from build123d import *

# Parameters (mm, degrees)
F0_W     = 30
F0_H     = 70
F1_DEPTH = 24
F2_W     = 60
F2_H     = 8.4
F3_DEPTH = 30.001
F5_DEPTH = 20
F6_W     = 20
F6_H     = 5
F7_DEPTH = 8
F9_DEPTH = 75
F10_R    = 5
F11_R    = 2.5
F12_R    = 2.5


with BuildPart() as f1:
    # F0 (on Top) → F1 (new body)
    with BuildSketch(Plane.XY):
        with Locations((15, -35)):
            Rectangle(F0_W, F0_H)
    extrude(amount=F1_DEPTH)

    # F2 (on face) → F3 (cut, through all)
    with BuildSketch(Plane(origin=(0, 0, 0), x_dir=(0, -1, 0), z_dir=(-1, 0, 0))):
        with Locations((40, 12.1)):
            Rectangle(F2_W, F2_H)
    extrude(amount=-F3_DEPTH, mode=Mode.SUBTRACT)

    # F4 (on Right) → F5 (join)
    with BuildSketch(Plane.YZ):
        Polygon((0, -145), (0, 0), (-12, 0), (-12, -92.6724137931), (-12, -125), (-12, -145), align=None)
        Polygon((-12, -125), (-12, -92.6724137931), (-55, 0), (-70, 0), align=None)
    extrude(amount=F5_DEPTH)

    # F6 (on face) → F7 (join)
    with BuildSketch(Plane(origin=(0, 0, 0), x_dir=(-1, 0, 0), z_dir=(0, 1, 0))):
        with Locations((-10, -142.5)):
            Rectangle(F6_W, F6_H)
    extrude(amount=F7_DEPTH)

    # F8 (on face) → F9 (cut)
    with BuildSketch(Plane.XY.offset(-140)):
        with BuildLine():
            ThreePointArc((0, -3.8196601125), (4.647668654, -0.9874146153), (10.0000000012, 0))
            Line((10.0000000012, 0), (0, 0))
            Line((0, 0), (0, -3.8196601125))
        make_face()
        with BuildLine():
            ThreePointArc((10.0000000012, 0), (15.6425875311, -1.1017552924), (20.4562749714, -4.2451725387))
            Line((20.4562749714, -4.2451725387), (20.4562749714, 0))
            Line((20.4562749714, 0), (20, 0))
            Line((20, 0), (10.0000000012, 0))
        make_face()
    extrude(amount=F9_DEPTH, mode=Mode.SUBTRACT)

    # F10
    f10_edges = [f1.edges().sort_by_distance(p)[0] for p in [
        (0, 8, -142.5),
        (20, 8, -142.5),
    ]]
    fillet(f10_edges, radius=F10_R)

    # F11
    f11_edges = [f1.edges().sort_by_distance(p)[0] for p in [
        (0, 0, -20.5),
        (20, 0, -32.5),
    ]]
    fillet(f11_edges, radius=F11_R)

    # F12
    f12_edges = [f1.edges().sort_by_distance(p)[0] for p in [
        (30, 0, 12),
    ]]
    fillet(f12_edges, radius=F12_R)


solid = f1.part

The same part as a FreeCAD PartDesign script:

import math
import FreeCAD as App
import Part
import Sketcher
from FreeCAD import Vector


def edges_at(feature, points):
    """Names of the edges that pass closest to the given points."""
    edges = feature.Shape.Edges
    near = lambda p: min(range(len(edges)), key=lambda i: edges[i].distToShape(Part.Vertex(*p))[0])
    return sorted({f"Edge{near(p) + 1}" for p in points})

doc = App.newDocument("Part")
body = doc.addObject("PartDesign::Body", "Body")

sketch1 = body.newObject("Sketcher::SketchObject", "Sketch")
sketch1.AttachmentSupport = (doc.getObject("XY_Plane"), [""])
sketch1.MapMode = "FlatFace"
sketch1.addGeometry([
    Part.LineSegment(Vector(0, 0, 0), Vector(0, -70, 0)),
    Part.LineSegment(Vector(0, -70, 0), Vector(30, -70, 0)),
    Part.LineSegment(Vector(30, -70, 0), Vector(30, 0, 0)),
    Part.LineSegment(Vector(30, 0, 0), Vector(0, 0, 0)),
], False)
sketch1.addConstraint([
    Sketcher.Constraint("Coincident", 0, 2, 1, 1),
    Sketcher.Constraint("Coincident", 1, 2, 2, 1),
    Sketcher.Constraint("Coincident", 2, 2, 3, 1),
    Sketcher.Constraint("Coincident", 3, 2, 0, 1),
    Sketcher.Constraint("Vertical", 0),
    Sketcher.Constraint("Horizontal", 1),
    Sketcher.Constraint("Vertical", 2),
    Sketcher.Constraint("Horizontal", 3),
    Sketcher.Constraint("Coincident", 3, 2, -1, 1),
    Sketcher.Constraint("DistanceX", 1, 1, 1, 2, 30.0),
    Sketcher.Constraint("DistanceY", 0, 2, 0, 1, 70.0),
])
pad1 = body.newObject("PartDesign::Pad", "Pad")
pad1.Profile = sketch1
pad1.Length = 24

sketch2 = body.newObject("Sketcher::SketchObject", "Sketch001")
sketch2.AttachmentSupport = (doc.getObject("YZ_Plane"), [""])
sketch2.MapMode = "FlatFace"
sketch2.addGeometry([
    Part.LineSegment(Vector(-10, 16, 0), Vector(-10, 8, 0)),
    Part.LineSegment(Vector(-10, 8, 0), Vector(-70, 8, 0)),
    Part.LineSegment(Vector(-70, 8, 0), Vector(-70, 16, 0)),
    Part.LineSegment(Vector(-70, 16, 0), Vector(-10, 16, 0)),
], False)
sketch2.addConstraint([
    Sketcher.Constraint("Coincident", 0, 2, 1, 1),
    Sketcher.Constraint("Coincident", 1, 2, 2, 1),
    Sketcher.Constraint("Coincident", 2, 2, 3, 1),
    Sketcher.Constraint("Coincident", 3, 2, 0, 1),
    Sketcher.Constraint("Vertical", 0),
    Sketcher.Constraint("Horizontal", 1),
    Sketcher.Constraint("Vertical", 2),
    Sketcher.Constraint("Horizontal", 3),
    Sketcher.Constraint("DistanceX", 1, 2, 1, 1, 60.0),
    Sketcher.Constraint("DistanceY", 0, 2, 0, 1, 8.4),
    Sketcher.Constraint("DistanceX", 0, 2, -1, 1, 10.0),
    Sketcher.Constraint("DistanceY", -1, 1, 0, 2, 7.9),
])
pocket1 = body.newObject("PartDesign::Pocket", "Pocket")
pocket1.Profile = sketch2
pocket1.Type = "ThroughAll"
pocket1.Reversed = True

sketch3 = body.newObject("Sketcher::SketchObject", "Sketch002")
sketch3.AttachmentSupport = (doc.getObject("YZ_Plane"), [""])
sketch3.MapMode = "FlatFace"
sketch3.addGeometry([
    Part.LineSegment(Vector(0, -145, 0), Vector(0, 0, 0)),
    Part.LineSegment(Vector(0, 0, 0), Vector(-12, 0, 0)),
    Part.LineSegment(Vector(-12, 0, 0), Vector(-12, -93, 0)),
    Part.LineSegment(Vector(-12, -93, 0), Vector(-55, 0, 0)),
    Part.LineSegment(Vector(-55, 0, 0), Vector(-70, 0, 0)),
    Part.LineSegment(Vector(-70, 0, 0), Vector(-12, -125, 0)),
    Part.LineSegment(Vector(-12, -125, 0), Vector(-12, -145, 0)),
    Part.LineSegment(Vector(-12, -145, 0), Vector(0, -145, 0)),
], False)
sketch3.addConstraint([
    Sketcher.Constraint("Coincident", 0, 2, 1, 1),
    Sketcher.Constraint("Coincident", 1, 2, 2, 1),
    Sketcher.Constraint("Coincident", 2, 2, 3, 1),
    Sketcher.Constraint("Coincident", 3, 2, 4, 1),
    Sketcher.Constraint("Coincident", 4, 2, 5, 1),
    Sketcher.Constraint("Coincident", 5, 2, 6, 1),
    Sketcher.Constraint("Coincident", 6, 2, 7, 1),
    Sketcher.Constraint("Coincident", 7, 2, 0, 1),
    Sketcher.Constraint("Vertical", 0),
    Sketcher.Constraint("Horizontal", 1),
    Sketcher.Constraint("Vertical", 2),
    Sketcher.Constraint("Horizontal", 4),
    Sketcher.Constraint("Vertical", 6),
    Sketcher.Constraint("Horizontal", 7),
    Sketcher.Constraint("Coincident", 0, 2, -1, 1),
    Sketcher.Constraint("PointOnObject", 3, 2, -1),
    Sketcher.Constraint("Parallel", 3, 5),
    Sketcher.Constraint("Vertical", 2, 2, 5, 2),
    Sketcher.Constraint("DistanceX", 1, 2, 1, 1, 12.0),
    Sketcher.Constraint("DistanceX", 4, 2, 4, 1, 15.0),
    Sketcher.Constraint("DistanceY", 0, 1, 0, 2, 145.0),
    Sketcher.Constraint("DistanceY", 6, 2, 6, 1, 20.0),
    Sketcher.Constraint("DistanceX", 3, 2, -1, 1, 55.0),
])
pad2 = body.newObject("PartDesign::Pad", "Pad001")
pad2.Profile = sketch3
pad2.Length = 20

sketch4 = body.newObject("Sketcher::SketchObject", "Sketch003")
sketch4.AttachmentSupport = (doc.getObject("XZ_Plane"), [""])
sketch4.MapMode = "FlatFace"
sketch4.addGeometry([
    Part.LineSegment(Vector(20, -140, 0), Vector(20, -145, 0)),
    Part.LineSegment(Vector(20, -145, 0), Vector(0, -145, 0)),
    Part.LineSegment(Vector(0, -145, 0), Vector(0, -140, 0)),
    Part.LineSegment(Vector(0, -140, 0), Vector(20, -140, 0)),
], False)
sketch4.addConstraint([
    Sketcher.Constraint("Coincident", 0, 2, 1, 1),
    Sketcher.Constraint("Coincident", 1, 2, 2, 1),
    Sketcher.Constraint("Coincident", 2, 2, 3, 1),
    Sketcher.Constraint("Coincident", 3, 2, 0, 1),
    Sketcher.Constraint("Vertical", 0),
    Sketcher.Constraint("Horizontal", 1),
    Sketcher.Constraint("Vertical", 2),
    Sketcher.Constraint("Horizontal", 3),
    Sketcher.Constraint("PointOnObject", 1, 2, -2),
    Sketcher.Constraint("DistanceX", 1, 2, 1, 1, 20.0),
    Sketcher.Constraint("DistanceY", 0, 2, 0, 1, 5.0),
    Sketcher.Constraint("DistanceY", 0, 2, -1, 1, 145.0),
])
pad3 = body.newObject("PartDesign::Pad", "Pad002")
pad3.Profile = sketch4
pad3.Length = 8
pad3.Reversed = True

sketch5 = body.newObject("Sketcher::SketchObject", "Sketch004")
sketch5.AttachmentSupport = (doc.getObject("XY_Plane"), [""])
sketch5.MapMode = "FlatFace"
sketch5.AttachmentOffset = App.Placement(Vector(0, 0, -140), App.Rotation())
sketch5.addGeometry([
    Part.ArcOfCircle(Part.Circle(Vector(10, -15, 0), Vector(0, 0, 1), 15), math.radians(90), math.radians(132)),
    Part.LineSegment(Vector(10, 0, 0), Vector(0, 0, 0)),
    Part.LineSegment(Vector(0, 0, 0), Vector(0, -3.8, 0)),
    Part.ArcOfCircle(Part.Circle(Vector(10, -15, 0), Vector(0, 0, 1), 15), math.radians(46), math.radians(90)),
    Part.LineSegment(Vector(20.5, -4.2, 0), Vector(20.5, 0, 0)),
    Part.LineSegment(Vector(20.5, 0, 0), Vector(10, 0, 0)),
], False)
sketch5.addConstraint([
    Sketcher.Constraint("Tangent", 0, 1, 1, 1),
    Sketcher.Constraint("Coincident", 1, 2, 2, 1),
    Sketcher.Constraint("Coincident", 2, 2, 0, 2),
    Sketcher.Constraint("Coincident", 3, 1, 4, 1),
    Sketcher.Constraint("Coincident", 4, 2, 5, 1),
    Sketcher.Constraint("Tangent", 5, 2, 3, 2),
    Sketcher.Constraint("Horizontal", 1),
    Sketcher.Constraint("Vertical", 2),
    Sketcher.Constraint("Vertical", 4),
    Sketcher.Constraint("Horizontal", 5),
    Sketcher.Constraint("Coincident", 1, 2, -1, 1),
    Sketcher.Constraint("Coincident", 3, 3, 0, 3),
    Sketcher.Constraint("Equal", 0, 3),
    Sketcher.Constraint("Radius", 0, 15.0),
    Sketcher.Constraint("DistanceX", 1, 2, 1, 1, 10.0),
    Sketcher.Constraint("DistanceX", 5, 2, 5, 1, 10.456275),
])
pocket2 = body.newObject("PartDesign::Pocket", "Pocket001")
pocket2.Profile = sketch5
pocket2.Length = 75
pocket2.Reversed = True
doc.recompute()

fillet = body.newObject("PartDesign::Fillet", "Fillet")
fillet.Base = (pocket2, edges_at(pocket2, [(0, 8, -142.5), (20, 8, -142.5)]))
fillet.Radius = 5
doc.recompute()

fillet2 = body.newObject("PartDesign::Fillet", "Fillet001")
fillet2.Base = (fillet, edges_at(fillet, [(0, 0, -20.5), (20, 0, -32.5)]))
fillet2.Radius = 2.5
doc.recompute()

fillet3 = body.newObject("PartDesign::Fillet", "Fillet002")
fillet3.Base = (fillet2, edges_at(fillet2, [(30, 0, 12)]))
fillet3.Radius = 2.5

doc.recompute()
